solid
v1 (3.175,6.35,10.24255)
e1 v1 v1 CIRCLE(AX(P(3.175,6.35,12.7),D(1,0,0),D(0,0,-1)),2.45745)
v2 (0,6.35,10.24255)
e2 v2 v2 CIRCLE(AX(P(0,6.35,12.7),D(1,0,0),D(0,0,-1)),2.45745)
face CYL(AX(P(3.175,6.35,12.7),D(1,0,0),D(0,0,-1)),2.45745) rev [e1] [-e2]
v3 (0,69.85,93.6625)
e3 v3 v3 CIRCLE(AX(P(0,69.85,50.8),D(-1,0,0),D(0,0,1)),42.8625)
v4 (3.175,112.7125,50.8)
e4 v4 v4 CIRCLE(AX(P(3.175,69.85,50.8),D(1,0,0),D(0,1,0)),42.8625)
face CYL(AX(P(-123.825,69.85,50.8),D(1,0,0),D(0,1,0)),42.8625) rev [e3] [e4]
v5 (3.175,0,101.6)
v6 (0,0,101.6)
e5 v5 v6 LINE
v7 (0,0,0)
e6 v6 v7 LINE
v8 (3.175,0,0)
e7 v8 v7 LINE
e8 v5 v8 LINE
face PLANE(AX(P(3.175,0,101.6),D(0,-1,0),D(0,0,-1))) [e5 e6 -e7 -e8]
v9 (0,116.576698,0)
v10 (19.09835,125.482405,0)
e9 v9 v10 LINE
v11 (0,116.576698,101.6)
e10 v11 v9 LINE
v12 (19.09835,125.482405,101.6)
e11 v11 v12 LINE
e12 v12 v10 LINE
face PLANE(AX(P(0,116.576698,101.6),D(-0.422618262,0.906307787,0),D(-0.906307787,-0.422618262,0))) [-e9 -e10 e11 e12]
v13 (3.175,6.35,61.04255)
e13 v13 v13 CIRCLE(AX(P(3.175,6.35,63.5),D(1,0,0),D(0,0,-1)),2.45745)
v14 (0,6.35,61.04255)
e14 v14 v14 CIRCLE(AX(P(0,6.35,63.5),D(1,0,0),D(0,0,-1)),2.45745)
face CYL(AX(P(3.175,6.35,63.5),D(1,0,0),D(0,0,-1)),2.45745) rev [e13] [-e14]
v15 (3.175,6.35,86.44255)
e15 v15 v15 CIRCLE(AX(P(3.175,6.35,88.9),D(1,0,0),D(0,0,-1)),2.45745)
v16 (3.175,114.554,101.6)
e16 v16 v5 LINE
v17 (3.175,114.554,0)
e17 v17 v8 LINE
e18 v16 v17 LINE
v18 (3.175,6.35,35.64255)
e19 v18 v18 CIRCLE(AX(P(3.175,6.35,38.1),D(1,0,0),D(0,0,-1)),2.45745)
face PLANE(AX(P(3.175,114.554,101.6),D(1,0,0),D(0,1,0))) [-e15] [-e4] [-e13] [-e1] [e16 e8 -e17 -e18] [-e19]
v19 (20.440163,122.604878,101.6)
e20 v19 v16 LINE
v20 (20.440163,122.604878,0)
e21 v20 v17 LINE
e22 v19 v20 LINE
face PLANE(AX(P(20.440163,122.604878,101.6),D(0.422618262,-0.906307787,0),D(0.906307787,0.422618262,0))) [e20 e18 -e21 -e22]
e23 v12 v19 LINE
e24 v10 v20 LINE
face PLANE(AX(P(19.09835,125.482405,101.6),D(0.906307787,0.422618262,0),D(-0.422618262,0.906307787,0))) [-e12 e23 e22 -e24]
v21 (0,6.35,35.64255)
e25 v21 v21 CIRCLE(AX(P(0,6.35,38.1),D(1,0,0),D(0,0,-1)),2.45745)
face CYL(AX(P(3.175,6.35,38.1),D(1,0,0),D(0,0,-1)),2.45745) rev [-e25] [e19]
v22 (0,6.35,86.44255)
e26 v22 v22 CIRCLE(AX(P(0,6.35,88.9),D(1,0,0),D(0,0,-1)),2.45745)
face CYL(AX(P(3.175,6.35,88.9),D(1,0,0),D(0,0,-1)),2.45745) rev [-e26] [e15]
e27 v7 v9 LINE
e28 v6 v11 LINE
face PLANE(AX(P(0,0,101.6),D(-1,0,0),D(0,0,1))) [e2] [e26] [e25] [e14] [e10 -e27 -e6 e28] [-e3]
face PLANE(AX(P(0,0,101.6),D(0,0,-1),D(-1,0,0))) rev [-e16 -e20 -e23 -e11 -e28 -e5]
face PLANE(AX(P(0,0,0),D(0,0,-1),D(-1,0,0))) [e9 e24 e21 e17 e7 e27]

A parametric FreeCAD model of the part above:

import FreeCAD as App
import Part
import Sketcher
from FreeCAD import Vector
Q = App.Units.Quantity


def add_polygon(sketch, points):
    """Adds a closed chain of lines whose ends are joined by coincident constraints."""
    first, n = sketch.GeometryCount, len(points)
    for a, b in zip(points, points[1:] + points[:1]):
        sketch.addGeometry(Part.LineSegment(App.Vector(*a, 0), App.Vector(*b, 0)), False)
    for i in range(n):
        sketch.addConstraint(Sketcher.Constraint("Coincident", first + i, 2, first + (i + 1) % n, 1))

doc = App.newDocument("Part")
body = doc.addObject("PartDesign::Body", "Body")

sketch1 = body.newObject("Sketcher::SketchObject", "Sketch")
sketch1.AttachmentSupport = (doc.getObject("XY_Plane"), [""])
sketch1.MapMode = "FlatFace"
add_polygon(sketch1, [(0, 116.6), (0, 0), (3.2, 0), (3.2, 114.6), (20.4, 122.6), (19.1, 125.5)])
sketch1.addConstraint([
    Sketcher.Constraint("Vertical", 0),
    Sketcher.Constraint("Horizontal", 1),
    Sketcher.Constraint("Vertical", 2),
    Sketcher.Constraint("Coincident", 0, 2, -1, 1),
    Sketcher.Constraint("Perpendicular", 3, 4),
    Sketcher.Constraint("Perpendicular", 4, 5),
    Sketcher.Constraint("Angle", 3, Q("25 deg")),
    Sketcher.Constraint("DistanceY", 2, 1, 2, 2, Q("4.51 in")),
    Sketcher.Constraint("Distance", 3, Q("0.75 in")),
    Sketcher.Constraint("DistanceX", 1, 1, 1, 2, Q("0.125 in")),
    Sketcher.Constraint("Distance", 4, Q("0.125 in")),
])
pad1 = body.newObject("PartDesign::Pad", "Pad")
pad1.Profile = sketch1
pad1.Length = Q("4 in")

sketch2 = body.newObject("Sketcher::SketchObject", "Sketch001")
sketch2.AttachmentSupport = (doc.getObject("YZ_Plane"), [""])
sketch2.MapMode = "FlatFace"
sketch2.AttachmentOffset = App.Placement(Vector(0, 0, 0.125 * 25.4), App.Rotation())
sketch2.addGeometry([
    Part.Circle(Vector(6.3, 88.9, 0), Vector(0, 0, 1), 2.5),
    Part.Circle(Vector(6.3, 63.5, 0), Vector(0, 0, 1), 2.5),
    Part.Circle(Vector(6.3, 38.1, 0), Vector(0, 0, 1), 2.5),
    Part.Circle(Vector(6.3, 12.7, 0), Vector(0, 0, 1), 2.5),
], False)
sketch2.addConstraint([
    Sketcher.Constraint("Equal", 0, 1),
    Sketcher.Constraint("Equal", 1, 2),
    Sketcher.Constraint("Equal", 2, 3),
    Sketcher.Constraint("Vertical", 0, 3, 1, 3),
    Sketcher.Constraint("Vertical", 1, 3, 2, 3),
    Sketcher.Constraint("Vertical", 2, 3, 3, 3),
    Sketcher.Constraint("DistanceY", 1, 3, 0, 3, Q("1 in")),
    Sketcher.Constraint("DistanceY", 2, 3, 1, 3, Q("1 in")),
    Sketcher.Constraint("DistanceY", 3, 3, 2, 3, Q("1 in")),
    Sketcher.Constraint("Diameter", 0, Q("0.1935 in")),
    Sketcher.Constraint("DistanceY", -1, 1, 0, 3, Q("3.5 in")),
    Sketcher.Constraint("DistanceX", -1, 1, 0, 3, Q("0.25 in")),
])
doc.recompute()
hole = body.newObject("PartDesign::Hole", "Hole")
hole.Profile = sketch2
hole.ThreadType = "None"
hole.Diameter = Q("0.1935 in")
hole.DepthType = "ThroughAll"

sketch3 = body.newObject("Sketcher::SketchObject", "Sketch002")
sketch3.AttachmentSupport = (doc.getObject("YZ_Plane"), [""])
sketch3.MapMode = "FlatFace"
sketch3.AttachmentOffset = App.Placement(Vector(0, 0, 0.125 * 25.4), App.Rotation())
sketch3.addGeometry(Part.Circle(Vector(70, 51, 0), Vector(0, 0, 1), 43), False)
sketch3.addConstraint([
    Sketcher.Constraint("Diameter", 0, Q("3.375 in")),
    Sketcher.Constraint("DistanceY", -1, 1, 0, 3, Q("2 in")),
    Sketcher.Constraint("DistanceX", -1, 1, 0, 3, Q("2.75 in")),
])
pocket1 = body.newObject("PartDesign::Pocket", "Pocket")
pocket1.Profile = sketch3
pocket1.Length = Q("5 in")

doc.recompute()
